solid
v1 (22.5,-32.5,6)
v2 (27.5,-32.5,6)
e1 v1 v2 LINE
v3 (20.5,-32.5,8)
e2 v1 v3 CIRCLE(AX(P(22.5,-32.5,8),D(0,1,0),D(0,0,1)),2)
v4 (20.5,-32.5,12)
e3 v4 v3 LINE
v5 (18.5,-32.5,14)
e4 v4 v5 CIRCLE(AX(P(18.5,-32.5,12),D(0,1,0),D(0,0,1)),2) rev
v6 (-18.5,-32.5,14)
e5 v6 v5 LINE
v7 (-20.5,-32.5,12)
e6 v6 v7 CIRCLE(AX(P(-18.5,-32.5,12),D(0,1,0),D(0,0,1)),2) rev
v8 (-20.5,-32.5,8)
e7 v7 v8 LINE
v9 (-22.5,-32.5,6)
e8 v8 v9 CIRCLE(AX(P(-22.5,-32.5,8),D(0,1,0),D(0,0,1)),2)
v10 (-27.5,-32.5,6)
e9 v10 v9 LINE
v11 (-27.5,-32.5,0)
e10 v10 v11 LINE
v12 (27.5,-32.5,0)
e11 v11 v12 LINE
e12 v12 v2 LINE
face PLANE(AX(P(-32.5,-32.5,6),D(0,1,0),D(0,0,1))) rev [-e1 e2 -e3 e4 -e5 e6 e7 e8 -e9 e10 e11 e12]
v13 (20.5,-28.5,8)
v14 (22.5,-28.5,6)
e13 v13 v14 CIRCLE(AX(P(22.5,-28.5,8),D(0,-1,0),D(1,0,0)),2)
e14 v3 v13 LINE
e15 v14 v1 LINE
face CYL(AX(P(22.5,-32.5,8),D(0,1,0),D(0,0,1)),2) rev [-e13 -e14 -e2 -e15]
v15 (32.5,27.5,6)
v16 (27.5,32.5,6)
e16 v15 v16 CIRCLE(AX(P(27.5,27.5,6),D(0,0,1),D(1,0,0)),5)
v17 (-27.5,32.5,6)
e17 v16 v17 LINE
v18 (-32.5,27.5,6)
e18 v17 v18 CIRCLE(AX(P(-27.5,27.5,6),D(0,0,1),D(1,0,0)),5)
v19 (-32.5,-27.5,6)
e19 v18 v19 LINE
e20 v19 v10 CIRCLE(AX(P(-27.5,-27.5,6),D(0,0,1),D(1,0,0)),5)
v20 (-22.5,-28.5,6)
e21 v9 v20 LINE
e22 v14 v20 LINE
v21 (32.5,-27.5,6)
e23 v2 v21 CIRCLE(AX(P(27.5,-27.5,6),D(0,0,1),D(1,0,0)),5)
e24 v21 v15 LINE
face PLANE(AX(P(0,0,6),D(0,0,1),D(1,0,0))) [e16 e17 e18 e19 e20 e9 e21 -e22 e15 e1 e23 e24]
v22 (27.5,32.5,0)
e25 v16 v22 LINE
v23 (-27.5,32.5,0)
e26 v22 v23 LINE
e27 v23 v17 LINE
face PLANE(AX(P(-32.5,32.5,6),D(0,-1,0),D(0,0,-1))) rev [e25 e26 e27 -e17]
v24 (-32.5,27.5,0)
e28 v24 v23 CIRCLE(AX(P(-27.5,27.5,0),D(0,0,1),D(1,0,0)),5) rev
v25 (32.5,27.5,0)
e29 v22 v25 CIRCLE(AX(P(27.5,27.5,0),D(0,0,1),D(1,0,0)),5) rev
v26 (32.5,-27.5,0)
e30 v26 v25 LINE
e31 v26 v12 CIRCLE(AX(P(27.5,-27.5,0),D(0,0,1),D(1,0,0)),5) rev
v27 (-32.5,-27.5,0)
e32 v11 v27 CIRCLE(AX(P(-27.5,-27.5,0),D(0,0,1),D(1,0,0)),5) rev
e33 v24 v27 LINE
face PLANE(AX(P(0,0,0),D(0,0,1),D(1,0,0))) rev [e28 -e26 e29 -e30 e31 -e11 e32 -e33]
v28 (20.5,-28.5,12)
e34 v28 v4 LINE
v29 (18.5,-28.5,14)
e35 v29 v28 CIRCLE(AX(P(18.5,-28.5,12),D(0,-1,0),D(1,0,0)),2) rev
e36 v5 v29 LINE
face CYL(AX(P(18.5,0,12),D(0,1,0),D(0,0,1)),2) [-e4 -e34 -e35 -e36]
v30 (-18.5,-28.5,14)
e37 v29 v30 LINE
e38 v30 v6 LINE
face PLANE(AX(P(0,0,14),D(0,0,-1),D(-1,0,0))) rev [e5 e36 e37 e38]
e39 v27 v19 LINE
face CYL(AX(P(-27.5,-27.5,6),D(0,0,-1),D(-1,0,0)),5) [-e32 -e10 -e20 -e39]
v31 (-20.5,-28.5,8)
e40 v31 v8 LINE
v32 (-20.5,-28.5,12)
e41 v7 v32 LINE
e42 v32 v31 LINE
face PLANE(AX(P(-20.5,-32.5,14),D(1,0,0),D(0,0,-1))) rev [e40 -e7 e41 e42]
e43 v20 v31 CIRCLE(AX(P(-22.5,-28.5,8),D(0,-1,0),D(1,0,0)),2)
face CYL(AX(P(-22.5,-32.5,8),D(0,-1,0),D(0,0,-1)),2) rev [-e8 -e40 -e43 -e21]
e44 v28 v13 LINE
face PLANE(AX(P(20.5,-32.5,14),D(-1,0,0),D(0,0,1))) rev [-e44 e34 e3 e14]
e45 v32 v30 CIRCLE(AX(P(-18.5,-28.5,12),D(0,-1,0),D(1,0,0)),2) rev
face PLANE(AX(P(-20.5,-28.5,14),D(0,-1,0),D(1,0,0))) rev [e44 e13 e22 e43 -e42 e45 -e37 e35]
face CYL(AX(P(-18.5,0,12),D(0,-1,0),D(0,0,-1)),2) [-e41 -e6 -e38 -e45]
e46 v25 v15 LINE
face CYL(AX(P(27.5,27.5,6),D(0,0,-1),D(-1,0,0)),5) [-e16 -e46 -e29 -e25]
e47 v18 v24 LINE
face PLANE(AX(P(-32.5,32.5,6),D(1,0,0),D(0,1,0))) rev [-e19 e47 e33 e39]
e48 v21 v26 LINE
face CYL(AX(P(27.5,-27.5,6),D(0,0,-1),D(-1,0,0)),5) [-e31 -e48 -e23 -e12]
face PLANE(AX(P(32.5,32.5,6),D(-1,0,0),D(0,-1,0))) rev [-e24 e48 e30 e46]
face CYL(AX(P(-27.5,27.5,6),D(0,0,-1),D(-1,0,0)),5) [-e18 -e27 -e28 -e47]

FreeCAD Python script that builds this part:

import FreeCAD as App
import Part
import Sketcher
Q = App.Units.Quantity


def edges_at(feature, points):
    """Names of the edges that pass closest to the given points."""
    edges = feature.Shape.Edges
    near = lambda p: min(range(len(edges)), key=lambda i: edges[i].distToShape(Part.Vertex(*p))[0])
    return sorted({f"Edge{near(p) + 1}" for p in points})


def add_polygon(sketch, points):
    """Adds a closed chain of lines whose ends are joined by coincident constraints."""
    first, n = sketch.GeometryCount, len(points)
    for a, b in zip(points, points[1:] + points[:1]):
        sketch.addGeometry(Part.LineSegment(App.Vector(*a, 0), App.Vector(*b, 0)), False)
    for i in range(n):
        sketch.addConstraint(Sketcher.Constraint("Coincident", first + i, 2, first + (i + 1) % n, 1))

doc = App.newDocument("Part")
body = doc.addObject("PartDesign::Body", "Body")

# Sketch on XY plane
sketch1 = body.newObject("Sketcher::SketchObject", "Sketch")
sketch1.AttachmentSupport = (doc.getObject("XY_Plane"), [""])
sketch1.MapMode = "FlatFace"
add_polygon(sketch1, [(-32, 32), (-32, -32), (32, -32), (32, 32)])  # lines 0-3
sketch1.addConstraint([
    Sketcher.Constraint("Vertical", 0),
    Sketcher.Constraint("Horizontal", 1),
    Sketcher.Constraint("Vertical", 2),
    Sketcher.Constraint("Horizontal", 3),
    Sketcher.Constraint("Symmetric", 0, 2, 2, 2, -1, 1),
    Sketcher.Constraint("Equal", 3, 0),
    Sketcher.Constraint("DistanceX", 1, 1, 1, 2, Q("65 mm")),
])
pad1 = body.newObject("PartDesign::Pad", "Pad")
pad1.Profile = sketch1
pad1.Length = 6
doc.recompute()

fillet = body.newObject("PartDesign::Fillet", "Fillet")
fillet.Base = (pad1, edges_at(pad1, [
    (32.5, -32.5, 3),
    (-32.5, -32.5, 3),
    (-32.5, 32.5, 3),
    (32.5, 32.5, 3),
]))
fillet.Radius = 5

# Sketch on XY plane
sketch2 = body.newObject("Sketcher::SketchObject", "Sketch001")
sketch2.AttachmentSupport = (doc.getObject("XY_Plane"), [""])
sketch2.MapMode = "FlatFace"
sketch2.AttachmentOffset = App.Placement(App.Vector(0, 0, 6), App.Rotation())
add_polygon(sketch2, [(-20.5, -28.5), (-20.5, -32.5), (20.5, -32.5), (20.5, -28.5)])  # lines 0-3
sketch2.addConstraint([
    Sketcher.Constraint("Vertical", 0),
    Sketcher.Constraint("Horizontal", 1),
    Sketcher.Constraint("Vertical", 2),
    Sketcher.Constraint("Horizontal", 3),
    Sketcher.Constraint("DistanceX", 1, 1, 1, 2, Q("41 mm")),
    Sketcher.Constraint("DistanceY", 0, 2, 0, 1, Q("4 mm")),
    Sketcher.Constraint("DistanceX", 0, 2, -1, 1, Q("20.5 mm")),
    Sketcher.Constraint("DistanceY", 0, 2, -1, 1, Q("32.5 mm")),
])
pad2 = body.newObject("PartDesign::Pad", "Pad001")
pad2.Profile = sketch2
pad2.Length = 8
doc.recompute()

fillet2 = body.newObject("PartDesign::Fillet", "Fillet001")
fillet2.Base = (pad2, edges_at(pad2, [
    (-20.5, -30.5, 6),
    (20.5, -30.5, 6),
    (-20.5, -30.5, 14),
    (20.5, -30.5, 14),
]))
fillet2.Radius = 2

doc.recompute()
